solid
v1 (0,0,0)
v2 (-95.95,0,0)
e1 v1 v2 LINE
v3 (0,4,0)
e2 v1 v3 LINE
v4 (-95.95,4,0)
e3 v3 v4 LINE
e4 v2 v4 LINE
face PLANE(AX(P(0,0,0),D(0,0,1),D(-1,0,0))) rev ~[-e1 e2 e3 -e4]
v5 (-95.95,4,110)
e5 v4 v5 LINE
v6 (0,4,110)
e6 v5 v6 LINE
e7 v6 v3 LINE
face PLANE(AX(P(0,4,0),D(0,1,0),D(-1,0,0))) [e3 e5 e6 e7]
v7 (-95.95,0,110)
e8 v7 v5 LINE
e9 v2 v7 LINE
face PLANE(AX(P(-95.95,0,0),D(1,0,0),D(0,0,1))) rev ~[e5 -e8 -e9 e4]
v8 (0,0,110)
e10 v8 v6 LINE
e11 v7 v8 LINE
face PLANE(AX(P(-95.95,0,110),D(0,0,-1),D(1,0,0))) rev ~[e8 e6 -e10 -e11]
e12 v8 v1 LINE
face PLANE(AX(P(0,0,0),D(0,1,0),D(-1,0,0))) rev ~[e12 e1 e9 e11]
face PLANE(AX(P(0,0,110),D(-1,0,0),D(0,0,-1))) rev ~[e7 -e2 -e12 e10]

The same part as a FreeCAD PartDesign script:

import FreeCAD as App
import Part
import Sketcher
from FreeCAD import Vector

doc = App.newDocument("Part")
body = doc.addObject("PartDesign::Body", "Body")

sketch1 = body.newObject("Sketcher::SketchObject", "Sketch")
sketch1.AttachmentSupport = (doc.getObject("XZ_Plane"), [""])
sketch1.MapMode = "FlatFace"
sketch1.addGeometry([
    Part.LineSegment(Vector(0, 110, 0), Vector(0, 0, 0)),
    Part.LineSegment(Vector(0, 0, 0), Vector(-96, 0, 0)),
    Part.LineSegment(Vector(-96, 0, 0), Vector(-96, 110, 0)),
    Part.LineSegment(Vector(-96, 110, 0), Vector(0, 110, 0)),
], False)
sketch1.addConstraint([
    Sketcher.Constraint("Coincident", 0, 2, 1, 1),
    Sketcher.Constraint("Coincident", 1, 2, 2, 1),
    Sketcher.Constraint("Coincident", 2, 2, 3, 1),
    Sketcher.Constraint("Coincident", 3, 2, 0, 1),
    Sketcher.Constraint("Vertical", 0),
    Sketcher.Constraint("Horizontal", 1),
    Sketcher.Constraint("Vertical", 2),
    Sketcher.Constraint("Horizontal", 3),
    Sketcher.Constraint("Coincident", 0, 2, -1, 1),
    Sketcher.Constraint("DistanceY", 0, 2, 0, 1, 110.0),
    Sketcher.Constraint("DistanceX", 1, 2, 1, 1, 95.95),
])
pad1 = body.newObject("PartDesign::Pad", "Pad")
pad1.Profile = sketch1
pad1.Length = 4
pad1.Reversed = True

doc.recompute()
